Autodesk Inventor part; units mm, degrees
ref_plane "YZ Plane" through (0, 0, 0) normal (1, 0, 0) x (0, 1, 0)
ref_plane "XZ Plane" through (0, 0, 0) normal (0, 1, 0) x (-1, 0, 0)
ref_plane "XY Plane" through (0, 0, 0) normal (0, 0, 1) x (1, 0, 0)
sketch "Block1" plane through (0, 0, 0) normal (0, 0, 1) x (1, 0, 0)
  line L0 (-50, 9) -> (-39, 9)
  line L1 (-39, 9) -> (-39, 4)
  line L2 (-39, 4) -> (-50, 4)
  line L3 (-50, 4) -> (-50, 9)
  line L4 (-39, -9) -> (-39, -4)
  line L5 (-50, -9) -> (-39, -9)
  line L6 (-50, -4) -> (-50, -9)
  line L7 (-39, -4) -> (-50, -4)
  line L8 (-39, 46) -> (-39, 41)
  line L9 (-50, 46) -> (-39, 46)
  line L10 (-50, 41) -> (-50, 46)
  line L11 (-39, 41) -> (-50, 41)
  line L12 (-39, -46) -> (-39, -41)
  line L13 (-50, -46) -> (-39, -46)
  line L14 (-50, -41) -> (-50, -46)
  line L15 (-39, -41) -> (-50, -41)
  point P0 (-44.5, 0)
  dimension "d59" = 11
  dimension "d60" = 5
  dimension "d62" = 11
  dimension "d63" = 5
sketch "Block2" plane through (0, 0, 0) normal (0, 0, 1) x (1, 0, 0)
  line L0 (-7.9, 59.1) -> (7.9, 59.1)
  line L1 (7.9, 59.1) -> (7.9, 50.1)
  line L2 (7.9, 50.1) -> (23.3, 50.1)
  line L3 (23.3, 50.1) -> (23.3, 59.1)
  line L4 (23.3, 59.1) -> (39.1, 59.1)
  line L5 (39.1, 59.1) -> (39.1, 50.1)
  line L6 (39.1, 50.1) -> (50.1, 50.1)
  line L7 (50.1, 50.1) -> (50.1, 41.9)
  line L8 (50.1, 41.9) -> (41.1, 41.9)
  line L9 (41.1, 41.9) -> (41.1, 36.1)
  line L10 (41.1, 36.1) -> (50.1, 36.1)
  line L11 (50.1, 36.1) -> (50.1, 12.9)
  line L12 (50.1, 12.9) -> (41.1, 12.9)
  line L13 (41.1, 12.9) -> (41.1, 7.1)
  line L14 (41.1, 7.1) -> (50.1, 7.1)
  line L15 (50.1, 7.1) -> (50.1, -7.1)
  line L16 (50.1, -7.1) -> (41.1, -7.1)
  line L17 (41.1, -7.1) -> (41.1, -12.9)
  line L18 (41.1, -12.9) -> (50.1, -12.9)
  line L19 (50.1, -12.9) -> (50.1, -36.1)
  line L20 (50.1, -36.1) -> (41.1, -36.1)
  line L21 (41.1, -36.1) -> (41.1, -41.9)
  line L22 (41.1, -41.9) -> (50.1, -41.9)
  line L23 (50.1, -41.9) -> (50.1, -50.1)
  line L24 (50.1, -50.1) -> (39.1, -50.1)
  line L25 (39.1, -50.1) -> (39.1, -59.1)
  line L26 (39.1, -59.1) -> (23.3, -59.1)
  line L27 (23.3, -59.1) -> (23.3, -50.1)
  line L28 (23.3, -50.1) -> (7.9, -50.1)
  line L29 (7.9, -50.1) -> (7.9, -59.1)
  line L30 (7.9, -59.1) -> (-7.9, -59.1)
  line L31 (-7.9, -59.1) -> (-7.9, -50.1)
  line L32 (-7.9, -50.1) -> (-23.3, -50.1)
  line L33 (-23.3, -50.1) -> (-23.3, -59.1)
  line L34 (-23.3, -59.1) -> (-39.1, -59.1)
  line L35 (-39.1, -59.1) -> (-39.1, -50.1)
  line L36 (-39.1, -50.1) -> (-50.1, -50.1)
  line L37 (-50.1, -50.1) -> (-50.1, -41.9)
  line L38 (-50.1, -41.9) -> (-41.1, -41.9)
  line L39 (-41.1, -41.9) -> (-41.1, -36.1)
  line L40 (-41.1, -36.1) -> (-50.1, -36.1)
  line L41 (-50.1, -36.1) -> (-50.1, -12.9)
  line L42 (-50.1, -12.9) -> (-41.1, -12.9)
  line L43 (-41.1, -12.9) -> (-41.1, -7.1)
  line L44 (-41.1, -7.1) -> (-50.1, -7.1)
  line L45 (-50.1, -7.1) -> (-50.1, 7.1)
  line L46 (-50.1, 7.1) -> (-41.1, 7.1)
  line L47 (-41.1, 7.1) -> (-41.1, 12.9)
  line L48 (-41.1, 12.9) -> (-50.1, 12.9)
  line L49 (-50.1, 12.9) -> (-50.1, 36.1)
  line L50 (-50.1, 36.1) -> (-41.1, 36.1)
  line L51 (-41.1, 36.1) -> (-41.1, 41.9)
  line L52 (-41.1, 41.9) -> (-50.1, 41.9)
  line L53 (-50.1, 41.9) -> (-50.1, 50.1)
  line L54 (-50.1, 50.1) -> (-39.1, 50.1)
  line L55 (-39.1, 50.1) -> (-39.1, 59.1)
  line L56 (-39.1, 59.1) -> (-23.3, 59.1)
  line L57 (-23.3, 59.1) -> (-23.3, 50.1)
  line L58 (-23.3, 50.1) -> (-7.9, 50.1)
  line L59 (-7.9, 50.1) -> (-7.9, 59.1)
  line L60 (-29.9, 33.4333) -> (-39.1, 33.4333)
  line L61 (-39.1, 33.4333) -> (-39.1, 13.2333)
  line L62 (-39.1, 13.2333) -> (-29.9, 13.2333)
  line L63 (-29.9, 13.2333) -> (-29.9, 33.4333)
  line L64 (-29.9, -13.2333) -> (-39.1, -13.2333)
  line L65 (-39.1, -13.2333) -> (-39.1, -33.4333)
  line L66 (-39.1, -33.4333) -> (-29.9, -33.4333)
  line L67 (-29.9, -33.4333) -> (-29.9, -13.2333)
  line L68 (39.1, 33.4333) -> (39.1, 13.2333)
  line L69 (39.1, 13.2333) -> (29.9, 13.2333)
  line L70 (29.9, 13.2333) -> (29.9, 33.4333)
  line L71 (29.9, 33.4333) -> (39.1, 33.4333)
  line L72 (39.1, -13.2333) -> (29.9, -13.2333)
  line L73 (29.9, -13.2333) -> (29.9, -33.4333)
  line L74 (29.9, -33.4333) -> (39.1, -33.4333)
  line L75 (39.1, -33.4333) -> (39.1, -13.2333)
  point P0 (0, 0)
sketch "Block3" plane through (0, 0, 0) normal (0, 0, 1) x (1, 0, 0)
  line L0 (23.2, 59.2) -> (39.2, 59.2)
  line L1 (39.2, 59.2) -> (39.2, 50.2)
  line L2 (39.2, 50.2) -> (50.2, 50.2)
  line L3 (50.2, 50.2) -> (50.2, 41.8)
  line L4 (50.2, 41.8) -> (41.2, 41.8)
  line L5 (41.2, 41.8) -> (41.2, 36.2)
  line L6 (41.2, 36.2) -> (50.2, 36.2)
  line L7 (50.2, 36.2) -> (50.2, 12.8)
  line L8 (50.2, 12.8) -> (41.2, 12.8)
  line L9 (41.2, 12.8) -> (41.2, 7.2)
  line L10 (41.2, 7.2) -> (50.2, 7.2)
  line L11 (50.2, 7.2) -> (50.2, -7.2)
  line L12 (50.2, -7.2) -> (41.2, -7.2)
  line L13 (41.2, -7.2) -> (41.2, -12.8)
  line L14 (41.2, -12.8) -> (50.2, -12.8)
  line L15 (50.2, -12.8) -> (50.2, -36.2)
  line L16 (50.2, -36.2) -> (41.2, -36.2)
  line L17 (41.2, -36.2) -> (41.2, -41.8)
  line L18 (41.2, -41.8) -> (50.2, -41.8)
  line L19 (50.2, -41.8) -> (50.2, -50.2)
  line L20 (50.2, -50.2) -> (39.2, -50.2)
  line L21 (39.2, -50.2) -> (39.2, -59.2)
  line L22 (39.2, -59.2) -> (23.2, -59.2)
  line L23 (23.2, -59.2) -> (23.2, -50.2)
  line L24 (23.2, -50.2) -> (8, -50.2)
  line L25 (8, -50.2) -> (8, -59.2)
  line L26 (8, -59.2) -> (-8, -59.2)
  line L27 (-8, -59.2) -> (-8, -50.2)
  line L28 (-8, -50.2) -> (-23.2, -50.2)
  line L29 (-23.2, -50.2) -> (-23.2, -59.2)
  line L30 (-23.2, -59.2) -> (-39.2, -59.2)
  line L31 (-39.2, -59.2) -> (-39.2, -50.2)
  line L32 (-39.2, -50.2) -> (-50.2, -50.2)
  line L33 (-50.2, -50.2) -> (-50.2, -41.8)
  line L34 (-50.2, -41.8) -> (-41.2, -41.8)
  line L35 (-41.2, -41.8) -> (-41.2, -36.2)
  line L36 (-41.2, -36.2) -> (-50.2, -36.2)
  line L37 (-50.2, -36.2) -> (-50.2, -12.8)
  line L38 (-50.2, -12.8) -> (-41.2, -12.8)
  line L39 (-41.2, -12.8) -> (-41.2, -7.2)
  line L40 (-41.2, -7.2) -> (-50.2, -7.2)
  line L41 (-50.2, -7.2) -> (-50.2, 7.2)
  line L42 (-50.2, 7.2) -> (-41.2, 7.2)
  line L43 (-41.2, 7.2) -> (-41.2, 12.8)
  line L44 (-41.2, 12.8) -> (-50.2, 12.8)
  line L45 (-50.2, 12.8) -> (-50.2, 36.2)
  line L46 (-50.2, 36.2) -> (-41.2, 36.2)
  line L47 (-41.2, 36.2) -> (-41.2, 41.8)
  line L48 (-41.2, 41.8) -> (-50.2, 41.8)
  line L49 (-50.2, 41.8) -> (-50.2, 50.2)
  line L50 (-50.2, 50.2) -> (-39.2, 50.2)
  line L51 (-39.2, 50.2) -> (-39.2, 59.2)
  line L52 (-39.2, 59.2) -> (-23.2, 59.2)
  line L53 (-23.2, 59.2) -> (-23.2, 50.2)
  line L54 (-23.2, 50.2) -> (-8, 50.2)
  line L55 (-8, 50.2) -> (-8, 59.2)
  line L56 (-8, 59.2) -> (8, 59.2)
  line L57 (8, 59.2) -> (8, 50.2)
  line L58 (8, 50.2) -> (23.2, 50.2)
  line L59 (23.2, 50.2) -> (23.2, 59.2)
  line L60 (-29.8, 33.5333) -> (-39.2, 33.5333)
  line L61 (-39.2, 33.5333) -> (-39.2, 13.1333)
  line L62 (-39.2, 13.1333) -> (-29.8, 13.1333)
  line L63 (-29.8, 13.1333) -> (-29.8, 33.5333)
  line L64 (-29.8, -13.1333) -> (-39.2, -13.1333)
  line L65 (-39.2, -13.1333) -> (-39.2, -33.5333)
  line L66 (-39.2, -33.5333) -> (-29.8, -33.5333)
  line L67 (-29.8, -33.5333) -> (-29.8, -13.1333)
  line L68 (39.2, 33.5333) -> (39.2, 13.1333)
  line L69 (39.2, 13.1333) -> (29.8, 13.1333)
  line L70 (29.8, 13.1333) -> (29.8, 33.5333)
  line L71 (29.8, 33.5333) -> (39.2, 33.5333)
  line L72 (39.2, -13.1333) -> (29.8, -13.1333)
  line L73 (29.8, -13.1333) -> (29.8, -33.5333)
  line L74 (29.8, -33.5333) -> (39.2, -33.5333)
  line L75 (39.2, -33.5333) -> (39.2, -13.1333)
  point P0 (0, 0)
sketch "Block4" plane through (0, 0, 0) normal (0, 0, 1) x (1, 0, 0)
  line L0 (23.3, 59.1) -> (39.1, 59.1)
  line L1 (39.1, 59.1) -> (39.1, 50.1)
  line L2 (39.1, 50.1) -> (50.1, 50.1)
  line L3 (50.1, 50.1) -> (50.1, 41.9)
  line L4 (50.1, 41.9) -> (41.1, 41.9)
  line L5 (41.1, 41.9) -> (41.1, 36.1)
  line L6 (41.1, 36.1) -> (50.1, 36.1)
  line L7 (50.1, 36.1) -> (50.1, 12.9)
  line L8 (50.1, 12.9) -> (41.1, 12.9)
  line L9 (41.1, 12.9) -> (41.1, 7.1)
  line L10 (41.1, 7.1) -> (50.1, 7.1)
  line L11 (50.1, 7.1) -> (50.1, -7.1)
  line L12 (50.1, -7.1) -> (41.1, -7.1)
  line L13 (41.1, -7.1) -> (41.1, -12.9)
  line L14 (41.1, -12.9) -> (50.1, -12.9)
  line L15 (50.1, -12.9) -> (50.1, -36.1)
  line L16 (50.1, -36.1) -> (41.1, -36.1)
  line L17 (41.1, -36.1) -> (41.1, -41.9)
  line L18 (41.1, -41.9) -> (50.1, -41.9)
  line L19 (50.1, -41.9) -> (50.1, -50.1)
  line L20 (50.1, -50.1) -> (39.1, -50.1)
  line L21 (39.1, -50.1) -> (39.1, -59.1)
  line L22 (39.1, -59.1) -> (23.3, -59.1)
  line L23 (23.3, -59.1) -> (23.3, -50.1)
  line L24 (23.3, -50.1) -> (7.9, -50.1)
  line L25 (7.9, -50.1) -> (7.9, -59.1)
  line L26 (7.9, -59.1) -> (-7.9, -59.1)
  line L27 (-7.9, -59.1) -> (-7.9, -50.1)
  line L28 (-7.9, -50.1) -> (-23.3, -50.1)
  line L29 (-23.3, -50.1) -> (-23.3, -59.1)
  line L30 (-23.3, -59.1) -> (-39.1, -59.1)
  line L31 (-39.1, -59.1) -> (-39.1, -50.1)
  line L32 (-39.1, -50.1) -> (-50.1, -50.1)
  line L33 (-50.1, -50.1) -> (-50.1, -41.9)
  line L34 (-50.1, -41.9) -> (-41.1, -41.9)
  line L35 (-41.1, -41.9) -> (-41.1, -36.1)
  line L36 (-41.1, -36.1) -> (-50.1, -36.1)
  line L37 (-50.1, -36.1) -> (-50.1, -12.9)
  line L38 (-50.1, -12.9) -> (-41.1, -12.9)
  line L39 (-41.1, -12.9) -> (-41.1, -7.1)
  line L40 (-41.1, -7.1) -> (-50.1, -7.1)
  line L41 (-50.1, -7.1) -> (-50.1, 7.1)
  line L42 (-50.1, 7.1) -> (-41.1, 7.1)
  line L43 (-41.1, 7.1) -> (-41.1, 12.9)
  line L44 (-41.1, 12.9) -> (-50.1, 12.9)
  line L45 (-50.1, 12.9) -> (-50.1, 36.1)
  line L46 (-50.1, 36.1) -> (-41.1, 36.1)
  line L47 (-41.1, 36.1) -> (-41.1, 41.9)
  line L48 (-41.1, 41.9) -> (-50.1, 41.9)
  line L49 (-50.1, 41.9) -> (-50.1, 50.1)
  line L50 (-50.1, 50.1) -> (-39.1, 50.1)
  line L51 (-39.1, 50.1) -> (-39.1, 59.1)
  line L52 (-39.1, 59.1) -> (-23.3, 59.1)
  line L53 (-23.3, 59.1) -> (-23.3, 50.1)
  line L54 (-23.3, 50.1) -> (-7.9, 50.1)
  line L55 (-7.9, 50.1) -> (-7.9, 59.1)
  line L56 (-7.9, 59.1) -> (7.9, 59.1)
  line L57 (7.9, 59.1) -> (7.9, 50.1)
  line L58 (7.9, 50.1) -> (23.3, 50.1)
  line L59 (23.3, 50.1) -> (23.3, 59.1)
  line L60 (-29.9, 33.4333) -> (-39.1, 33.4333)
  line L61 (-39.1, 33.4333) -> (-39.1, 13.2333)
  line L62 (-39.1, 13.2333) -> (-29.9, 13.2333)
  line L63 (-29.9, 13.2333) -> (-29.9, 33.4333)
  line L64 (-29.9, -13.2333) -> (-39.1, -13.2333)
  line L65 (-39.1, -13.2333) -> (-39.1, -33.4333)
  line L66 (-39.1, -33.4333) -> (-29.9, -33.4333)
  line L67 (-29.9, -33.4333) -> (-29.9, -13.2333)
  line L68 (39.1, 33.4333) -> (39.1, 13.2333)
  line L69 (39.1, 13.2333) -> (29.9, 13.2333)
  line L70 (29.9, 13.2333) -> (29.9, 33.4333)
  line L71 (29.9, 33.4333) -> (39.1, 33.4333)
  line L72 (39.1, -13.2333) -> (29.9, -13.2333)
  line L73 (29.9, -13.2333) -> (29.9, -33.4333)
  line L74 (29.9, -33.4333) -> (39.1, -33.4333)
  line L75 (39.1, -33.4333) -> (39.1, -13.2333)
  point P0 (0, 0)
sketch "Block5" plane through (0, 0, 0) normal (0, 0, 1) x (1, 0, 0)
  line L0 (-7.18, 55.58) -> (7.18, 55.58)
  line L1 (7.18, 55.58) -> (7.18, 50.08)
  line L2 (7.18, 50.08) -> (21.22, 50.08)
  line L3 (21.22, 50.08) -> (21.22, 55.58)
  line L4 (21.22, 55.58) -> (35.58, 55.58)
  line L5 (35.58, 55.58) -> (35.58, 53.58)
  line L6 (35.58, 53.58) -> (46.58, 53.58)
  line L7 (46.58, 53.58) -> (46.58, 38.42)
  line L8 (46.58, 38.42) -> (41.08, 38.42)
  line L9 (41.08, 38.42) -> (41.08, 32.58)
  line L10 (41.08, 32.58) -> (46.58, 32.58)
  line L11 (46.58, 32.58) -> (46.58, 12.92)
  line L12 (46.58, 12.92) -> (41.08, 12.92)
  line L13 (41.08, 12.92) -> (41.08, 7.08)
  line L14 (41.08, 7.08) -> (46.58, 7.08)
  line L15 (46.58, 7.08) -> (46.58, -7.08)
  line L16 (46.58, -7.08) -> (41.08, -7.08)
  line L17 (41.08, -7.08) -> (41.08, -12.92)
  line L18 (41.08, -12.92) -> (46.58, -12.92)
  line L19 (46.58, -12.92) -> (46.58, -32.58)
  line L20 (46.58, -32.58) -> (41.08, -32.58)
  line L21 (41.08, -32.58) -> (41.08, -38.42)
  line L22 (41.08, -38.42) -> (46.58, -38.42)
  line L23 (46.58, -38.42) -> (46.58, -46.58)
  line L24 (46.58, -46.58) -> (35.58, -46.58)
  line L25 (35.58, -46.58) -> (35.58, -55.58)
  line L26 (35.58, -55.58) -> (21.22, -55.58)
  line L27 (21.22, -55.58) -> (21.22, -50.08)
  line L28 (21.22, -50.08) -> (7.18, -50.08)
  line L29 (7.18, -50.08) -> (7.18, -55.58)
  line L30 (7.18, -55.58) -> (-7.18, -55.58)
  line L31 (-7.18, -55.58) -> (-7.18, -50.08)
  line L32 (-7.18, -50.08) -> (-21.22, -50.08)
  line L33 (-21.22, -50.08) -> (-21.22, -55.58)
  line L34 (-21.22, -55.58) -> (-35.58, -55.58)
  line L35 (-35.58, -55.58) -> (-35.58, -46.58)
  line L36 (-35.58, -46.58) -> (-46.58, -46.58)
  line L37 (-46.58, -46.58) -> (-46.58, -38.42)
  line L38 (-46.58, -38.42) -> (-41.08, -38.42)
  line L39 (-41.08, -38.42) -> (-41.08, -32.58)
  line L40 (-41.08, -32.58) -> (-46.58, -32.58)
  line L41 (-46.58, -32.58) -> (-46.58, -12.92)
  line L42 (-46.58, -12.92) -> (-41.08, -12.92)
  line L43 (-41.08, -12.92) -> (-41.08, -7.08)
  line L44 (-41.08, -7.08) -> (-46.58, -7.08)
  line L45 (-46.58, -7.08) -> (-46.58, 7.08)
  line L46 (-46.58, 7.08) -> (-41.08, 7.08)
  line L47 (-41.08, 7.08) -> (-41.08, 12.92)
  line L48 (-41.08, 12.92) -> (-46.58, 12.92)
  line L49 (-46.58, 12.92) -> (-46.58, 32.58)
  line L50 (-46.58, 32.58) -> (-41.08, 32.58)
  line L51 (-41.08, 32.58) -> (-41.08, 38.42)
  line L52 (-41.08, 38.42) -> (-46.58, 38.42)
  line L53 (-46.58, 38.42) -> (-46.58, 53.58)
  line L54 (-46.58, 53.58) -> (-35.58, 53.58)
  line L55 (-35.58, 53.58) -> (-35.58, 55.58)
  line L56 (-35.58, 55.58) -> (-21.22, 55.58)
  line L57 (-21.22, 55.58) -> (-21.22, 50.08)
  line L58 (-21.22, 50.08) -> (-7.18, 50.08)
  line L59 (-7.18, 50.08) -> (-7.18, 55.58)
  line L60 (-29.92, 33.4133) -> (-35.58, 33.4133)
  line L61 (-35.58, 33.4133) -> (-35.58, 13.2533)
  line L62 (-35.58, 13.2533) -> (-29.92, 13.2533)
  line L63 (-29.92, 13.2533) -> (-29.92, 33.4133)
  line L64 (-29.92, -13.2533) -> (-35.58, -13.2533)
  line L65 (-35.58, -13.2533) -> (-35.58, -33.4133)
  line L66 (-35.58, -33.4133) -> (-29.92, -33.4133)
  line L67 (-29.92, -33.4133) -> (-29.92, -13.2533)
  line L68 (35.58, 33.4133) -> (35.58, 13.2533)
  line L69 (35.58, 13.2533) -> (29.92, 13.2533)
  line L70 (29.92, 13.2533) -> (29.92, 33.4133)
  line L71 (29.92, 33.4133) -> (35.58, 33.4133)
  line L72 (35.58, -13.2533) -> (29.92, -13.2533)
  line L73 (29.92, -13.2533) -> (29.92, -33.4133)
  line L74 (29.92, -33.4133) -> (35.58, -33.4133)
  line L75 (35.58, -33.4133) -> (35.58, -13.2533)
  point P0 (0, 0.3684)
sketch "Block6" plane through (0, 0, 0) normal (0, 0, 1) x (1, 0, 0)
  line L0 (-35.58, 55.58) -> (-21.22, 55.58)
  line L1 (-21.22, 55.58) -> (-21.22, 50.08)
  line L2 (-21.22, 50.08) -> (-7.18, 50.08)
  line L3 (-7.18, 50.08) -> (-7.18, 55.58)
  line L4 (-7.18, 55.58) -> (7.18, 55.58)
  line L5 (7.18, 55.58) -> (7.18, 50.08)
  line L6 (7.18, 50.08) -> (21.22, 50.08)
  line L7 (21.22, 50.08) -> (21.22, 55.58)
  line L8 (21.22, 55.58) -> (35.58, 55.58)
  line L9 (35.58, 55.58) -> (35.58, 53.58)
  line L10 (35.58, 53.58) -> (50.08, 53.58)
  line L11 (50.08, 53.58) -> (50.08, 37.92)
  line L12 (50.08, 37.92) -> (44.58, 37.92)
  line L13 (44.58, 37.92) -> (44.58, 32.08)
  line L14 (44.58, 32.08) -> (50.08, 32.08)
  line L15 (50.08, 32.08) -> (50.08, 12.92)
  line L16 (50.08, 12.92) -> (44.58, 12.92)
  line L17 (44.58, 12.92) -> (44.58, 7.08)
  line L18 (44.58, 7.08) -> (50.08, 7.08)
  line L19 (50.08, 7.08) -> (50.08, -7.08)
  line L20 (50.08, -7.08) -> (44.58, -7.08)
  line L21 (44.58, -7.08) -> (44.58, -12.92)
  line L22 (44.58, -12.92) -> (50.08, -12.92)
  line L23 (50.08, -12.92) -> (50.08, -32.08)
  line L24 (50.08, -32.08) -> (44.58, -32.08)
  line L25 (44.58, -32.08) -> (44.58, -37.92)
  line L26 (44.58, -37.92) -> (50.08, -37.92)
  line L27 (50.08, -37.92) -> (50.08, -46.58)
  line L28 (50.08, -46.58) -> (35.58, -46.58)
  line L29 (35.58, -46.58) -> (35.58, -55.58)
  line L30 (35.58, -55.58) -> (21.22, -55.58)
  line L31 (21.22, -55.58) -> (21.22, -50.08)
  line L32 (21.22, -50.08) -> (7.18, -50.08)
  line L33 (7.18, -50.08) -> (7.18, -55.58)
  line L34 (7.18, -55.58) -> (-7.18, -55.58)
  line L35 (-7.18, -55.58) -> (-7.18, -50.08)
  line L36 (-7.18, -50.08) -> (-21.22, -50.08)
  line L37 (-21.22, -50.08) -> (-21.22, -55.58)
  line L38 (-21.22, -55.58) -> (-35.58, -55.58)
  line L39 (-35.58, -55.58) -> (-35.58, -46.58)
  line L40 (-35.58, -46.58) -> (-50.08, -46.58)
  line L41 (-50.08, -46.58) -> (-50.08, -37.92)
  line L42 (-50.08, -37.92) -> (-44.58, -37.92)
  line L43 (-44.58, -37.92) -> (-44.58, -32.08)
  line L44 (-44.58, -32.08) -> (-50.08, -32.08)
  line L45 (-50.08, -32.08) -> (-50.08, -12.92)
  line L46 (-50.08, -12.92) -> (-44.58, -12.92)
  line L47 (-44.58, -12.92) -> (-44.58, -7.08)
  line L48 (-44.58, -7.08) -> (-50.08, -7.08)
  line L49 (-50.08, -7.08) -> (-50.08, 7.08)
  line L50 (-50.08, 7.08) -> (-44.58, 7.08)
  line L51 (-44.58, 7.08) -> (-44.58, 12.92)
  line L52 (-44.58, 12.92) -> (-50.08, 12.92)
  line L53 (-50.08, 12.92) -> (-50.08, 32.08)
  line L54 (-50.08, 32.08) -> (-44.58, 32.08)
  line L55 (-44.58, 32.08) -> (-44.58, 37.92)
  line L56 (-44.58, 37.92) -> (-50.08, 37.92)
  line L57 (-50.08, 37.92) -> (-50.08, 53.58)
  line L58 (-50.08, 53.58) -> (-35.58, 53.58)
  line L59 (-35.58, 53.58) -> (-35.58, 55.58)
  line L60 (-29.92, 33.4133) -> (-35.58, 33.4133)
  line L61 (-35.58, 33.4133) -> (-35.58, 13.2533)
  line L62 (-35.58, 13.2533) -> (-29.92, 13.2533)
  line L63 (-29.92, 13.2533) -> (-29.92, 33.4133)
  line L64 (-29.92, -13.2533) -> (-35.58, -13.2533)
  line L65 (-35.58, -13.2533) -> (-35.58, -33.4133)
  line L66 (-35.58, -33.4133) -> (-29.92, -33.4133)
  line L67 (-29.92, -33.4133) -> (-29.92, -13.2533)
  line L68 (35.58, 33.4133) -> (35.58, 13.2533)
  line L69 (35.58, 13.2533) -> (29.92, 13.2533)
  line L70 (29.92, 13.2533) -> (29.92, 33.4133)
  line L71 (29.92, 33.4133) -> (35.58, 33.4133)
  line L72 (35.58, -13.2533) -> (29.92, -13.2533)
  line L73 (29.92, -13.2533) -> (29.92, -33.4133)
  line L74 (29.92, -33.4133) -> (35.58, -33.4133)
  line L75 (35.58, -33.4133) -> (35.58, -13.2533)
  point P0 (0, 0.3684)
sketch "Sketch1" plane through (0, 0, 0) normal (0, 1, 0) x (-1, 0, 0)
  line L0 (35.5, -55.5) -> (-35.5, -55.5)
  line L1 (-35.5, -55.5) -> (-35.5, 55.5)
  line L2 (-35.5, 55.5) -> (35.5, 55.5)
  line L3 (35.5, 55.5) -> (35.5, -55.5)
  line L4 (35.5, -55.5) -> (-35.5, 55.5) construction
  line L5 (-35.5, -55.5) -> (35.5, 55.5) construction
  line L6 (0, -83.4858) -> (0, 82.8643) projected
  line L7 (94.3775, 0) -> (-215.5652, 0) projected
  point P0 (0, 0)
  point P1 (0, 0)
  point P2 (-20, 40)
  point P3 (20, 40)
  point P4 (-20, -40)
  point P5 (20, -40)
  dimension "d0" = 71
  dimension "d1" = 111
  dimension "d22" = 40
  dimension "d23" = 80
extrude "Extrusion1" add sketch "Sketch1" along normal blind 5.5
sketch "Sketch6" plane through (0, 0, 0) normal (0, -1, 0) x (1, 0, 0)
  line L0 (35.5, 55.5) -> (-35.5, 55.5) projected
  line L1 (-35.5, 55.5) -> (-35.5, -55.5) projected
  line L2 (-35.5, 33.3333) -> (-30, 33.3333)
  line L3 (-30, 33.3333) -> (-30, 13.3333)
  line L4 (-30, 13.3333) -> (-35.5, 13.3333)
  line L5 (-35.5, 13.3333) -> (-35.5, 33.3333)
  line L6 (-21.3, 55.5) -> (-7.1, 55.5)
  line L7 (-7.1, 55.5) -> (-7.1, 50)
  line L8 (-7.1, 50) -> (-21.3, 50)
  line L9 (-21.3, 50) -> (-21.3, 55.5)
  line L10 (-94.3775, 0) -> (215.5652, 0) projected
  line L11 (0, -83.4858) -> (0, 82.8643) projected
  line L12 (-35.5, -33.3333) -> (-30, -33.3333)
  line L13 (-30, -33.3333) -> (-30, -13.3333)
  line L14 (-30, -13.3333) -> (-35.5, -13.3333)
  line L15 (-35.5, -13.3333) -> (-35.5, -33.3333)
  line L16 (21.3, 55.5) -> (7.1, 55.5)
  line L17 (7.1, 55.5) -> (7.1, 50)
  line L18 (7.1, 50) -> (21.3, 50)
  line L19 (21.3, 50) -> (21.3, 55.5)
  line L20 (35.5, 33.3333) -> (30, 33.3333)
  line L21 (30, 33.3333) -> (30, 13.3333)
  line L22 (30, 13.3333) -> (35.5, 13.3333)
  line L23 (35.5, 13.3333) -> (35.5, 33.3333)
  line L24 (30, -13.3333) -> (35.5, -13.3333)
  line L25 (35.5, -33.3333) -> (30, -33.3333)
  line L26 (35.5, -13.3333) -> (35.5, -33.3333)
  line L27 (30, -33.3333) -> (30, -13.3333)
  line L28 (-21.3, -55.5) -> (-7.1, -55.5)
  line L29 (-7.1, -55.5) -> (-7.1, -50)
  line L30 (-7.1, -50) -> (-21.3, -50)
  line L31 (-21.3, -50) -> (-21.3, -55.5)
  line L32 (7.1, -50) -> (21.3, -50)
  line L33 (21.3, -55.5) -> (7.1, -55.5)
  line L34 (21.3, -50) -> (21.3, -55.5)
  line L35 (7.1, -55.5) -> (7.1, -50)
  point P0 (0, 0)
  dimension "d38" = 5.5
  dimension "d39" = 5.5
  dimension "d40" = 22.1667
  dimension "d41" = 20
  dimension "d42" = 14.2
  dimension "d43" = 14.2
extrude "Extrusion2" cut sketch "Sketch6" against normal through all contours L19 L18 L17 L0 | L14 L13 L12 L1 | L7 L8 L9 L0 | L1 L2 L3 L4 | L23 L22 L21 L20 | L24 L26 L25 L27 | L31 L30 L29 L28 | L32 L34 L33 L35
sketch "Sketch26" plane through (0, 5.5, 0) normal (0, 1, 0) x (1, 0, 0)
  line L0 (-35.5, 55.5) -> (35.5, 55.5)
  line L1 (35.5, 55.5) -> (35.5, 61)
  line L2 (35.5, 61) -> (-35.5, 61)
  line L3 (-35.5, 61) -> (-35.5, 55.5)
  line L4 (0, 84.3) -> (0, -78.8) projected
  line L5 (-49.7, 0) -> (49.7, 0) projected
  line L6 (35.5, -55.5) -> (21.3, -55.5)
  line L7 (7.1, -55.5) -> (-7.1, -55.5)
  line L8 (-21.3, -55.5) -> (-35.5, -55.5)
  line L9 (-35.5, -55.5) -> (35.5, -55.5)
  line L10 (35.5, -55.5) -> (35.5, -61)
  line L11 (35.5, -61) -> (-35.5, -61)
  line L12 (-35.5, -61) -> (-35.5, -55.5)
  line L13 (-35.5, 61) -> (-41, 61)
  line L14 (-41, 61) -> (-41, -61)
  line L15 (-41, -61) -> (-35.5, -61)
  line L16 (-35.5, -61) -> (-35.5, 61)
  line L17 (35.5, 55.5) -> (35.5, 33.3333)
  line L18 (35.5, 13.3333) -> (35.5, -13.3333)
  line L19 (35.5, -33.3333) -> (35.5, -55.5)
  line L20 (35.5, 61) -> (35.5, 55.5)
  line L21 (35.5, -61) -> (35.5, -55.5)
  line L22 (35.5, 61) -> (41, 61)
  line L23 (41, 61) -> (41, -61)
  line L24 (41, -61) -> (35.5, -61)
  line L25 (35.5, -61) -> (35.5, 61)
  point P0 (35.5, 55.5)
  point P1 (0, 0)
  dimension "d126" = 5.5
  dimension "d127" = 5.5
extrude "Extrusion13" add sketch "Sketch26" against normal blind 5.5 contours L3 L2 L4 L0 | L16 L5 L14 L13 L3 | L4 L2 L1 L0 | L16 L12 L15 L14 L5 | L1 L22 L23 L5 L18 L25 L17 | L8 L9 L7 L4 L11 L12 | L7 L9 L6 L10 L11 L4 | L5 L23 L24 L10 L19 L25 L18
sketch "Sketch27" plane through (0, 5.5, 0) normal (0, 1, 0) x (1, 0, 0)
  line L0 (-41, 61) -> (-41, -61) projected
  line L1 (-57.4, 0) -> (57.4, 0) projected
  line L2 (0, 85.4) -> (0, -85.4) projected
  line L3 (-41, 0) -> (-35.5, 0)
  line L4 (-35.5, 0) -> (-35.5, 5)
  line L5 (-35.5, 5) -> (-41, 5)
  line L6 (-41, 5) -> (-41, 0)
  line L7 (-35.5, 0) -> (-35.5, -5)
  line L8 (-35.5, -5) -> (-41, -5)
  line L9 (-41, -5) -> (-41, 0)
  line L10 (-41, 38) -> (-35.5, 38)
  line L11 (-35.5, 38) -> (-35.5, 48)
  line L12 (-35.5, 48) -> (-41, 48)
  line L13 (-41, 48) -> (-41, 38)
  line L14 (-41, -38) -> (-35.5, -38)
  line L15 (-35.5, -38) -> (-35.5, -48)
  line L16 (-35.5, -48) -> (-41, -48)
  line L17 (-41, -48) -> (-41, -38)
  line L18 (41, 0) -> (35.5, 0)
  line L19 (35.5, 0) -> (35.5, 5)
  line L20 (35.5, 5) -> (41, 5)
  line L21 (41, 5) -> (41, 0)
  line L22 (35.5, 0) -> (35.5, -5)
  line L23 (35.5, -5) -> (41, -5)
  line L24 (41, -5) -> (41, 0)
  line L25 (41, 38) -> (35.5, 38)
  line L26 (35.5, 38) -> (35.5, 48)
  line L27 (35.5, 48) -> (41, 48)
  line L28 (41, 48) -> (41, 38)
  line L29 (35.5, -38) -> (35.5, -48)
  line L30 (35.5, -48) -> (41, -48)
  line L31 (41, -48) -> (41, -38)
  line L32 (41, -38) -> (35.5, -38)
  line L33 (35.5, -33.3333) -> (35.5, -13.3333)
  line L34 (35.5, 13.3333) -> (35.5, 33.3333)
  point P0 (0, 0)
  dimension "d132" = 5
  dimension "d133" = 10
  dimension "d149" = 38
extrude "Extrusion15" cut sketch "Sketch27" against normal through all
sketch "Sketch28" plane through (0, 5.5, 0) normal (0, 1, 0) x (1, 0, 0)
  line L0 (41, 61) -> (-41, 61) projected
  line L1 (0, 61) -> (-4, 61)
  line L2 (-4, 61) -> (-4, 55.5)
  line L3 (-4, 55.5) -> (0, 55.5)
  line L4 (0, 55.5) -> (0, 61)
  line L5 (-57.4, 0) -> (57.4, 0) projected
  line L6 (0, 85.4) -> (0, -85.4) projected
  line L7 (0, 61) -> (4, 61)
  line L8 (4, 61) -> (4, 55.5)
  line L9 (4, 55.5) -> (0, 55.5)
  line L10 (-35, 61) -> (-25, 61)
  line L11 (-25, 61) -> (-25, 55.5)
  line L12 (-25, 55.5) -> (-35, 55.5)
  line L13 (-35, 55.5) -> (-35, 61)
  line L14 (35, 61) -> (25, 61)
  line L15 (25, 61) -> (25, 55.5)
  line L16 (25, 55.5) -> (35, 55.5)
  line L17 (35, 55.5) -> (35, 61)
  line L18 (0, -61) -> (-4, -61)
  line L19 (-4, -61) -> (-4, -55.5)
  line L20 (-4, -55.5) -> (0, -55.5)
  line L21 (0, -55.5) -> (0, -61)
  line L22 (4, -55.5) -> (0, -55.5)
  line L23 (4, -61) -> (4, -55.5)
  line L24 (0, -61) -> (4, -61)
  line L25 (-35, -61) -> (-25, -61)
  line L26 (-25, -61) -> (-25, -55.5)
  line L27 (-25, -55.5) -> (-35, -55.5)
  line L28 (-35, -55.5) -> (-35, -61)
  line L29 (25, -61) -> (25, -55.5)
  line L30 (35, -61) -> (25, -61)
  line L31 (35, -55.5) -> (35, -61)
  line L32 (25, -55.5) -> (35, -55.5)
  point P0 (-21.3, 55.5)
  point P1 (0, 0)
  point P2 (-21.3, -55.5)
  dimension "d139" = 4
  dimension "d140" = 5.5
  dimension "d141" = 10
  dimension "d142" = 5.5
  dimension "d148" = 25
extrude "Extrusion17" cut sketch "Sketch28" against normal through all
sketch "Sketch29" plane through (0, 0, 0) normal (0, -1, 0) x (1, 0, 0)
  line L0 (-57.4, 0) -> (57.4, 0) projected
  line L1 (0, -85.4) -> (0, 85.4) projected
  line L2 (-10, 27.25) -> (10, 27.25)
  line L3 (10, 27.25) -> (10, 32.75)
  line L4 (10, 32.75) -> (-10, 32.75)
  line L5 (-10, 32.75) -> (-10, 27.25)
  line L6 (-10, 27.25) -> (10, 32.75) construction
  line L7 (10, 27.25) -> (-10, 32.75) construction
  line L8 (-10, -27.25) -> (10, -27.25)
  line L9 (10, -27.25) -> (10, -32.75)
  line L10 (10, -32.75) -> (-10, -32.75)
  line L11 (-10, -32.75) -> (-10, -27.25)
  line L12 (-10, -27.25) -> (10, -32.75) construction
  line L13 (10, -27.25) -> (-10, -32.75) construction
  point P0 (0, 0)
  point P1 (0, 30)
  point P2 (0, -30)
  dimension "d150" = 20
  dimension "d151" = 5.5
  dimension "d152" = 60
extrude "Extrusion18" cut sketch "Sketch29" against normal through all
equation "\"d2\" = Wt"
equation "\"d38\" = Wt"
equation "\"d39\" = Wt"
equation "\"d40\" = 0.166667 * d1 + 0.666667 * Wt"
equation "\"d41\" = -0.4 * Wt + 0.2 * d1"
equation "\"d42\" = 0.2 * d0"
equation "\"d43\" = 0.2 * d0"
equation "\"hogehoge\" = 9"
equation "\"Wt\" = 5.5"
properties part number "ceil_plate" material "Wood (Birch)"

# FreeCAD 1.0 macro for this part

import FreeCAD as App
import Part
import Sketcher
Q = App.Units.Quantity


def add_polygon(sketch, points):
    """Adds a closed chain of lines whose ends are joined by coincident constraints."""
    first, n = sketch.GeometryCount, len(points)
    for a, b in zip(points, points[1:] + points[:1]):
        sketch.addGeometry(Part.LineSegment(App.Vector(*a, 0), App.Vector(*b, 0)), False)
    for i in range(n):
        sketch.addConstraint(Sketcher.Constraint("Coincident", first + i, 2, first + (i + 1) % n, 1))

doc = App.newDocument("Part")
params = doc.addObject("Spreadsheet::Sheet", "Params")
for row, (alias, value) in enumerate([
    ("sketch1_width", "71 mm"),
    ("sketch1_height", "111 mm"),
    ("pad1_length", "5.5 mm"),
    ("sketch2_height", "20 mm"),
    ("sketch2_width", "14.2 mm"),
    ("sketch2_width2", "5.5 mm"),
    ("sketch3_width", "82 mm"),
    ("sketch3_height", "122 mm"),
    ("pad2_length", "5.5 mm"),
    ("sketch4_height", "10 mm"),
    ("sketch4_width", "5.5 mm"),
    ("sketch5_width", "10 mm"),
    ("sketch5_height", "5.5 mm"),
    ("sketch6_width", "20 mm"),
    ("sketch6_height", "5.5 mm"),
], start=1):
    params.set(f"A{row}", alias)
    params.set(f"B{row}", "=" + value)
    params.setAlias(f"B{row}", alias)

body = doc.addObject("PartDesign::Body", "Body")

sketch1 = body.newObject("Sketcher::SketchObject", "Sketch")
sketch1.AttachmentSupport = (doc.getObject("XZ_Plane"), [""])
sketch1.MapMode = "FlatFace"
add_polygon(sketch1, [(-36, -56), (-36, 56), (36, 56), (36, -56)])
sketch1.addConstraint([
    Sketcher.Constraint("Vertical", 0),
    Sketcher.Constraint("Horizontal", 1),
    Sketcher.Constraint("Vertical", 2),
    Sketcher.Constraint("Horizontal", 3),
    Sketcher.Constraint("Symmetric", 0, 2, 2, 2, -1, 1),
    Sketcher.Constraint("DistanceX", 1, 1, 1, 2, Q("71 mm")),
    Sketcher.Constraint("DistanceY", 0, 1, 0, 2, Q("111 mm")),
])
sketch1.setExpression("Constraints[9]", "Params.sketch1_width")
sketch1.setExpression("Constraints[10]", "Params.sketch1_height")
pad1 = body.newObject("PartDesign::Pad", "Pad")
pad1.Profile = sketch1
pad1.setExpression("Length", "Params.pad1_length")
pad1.Reversed = True

sketch2 = body.newObject("Sketcher::SketchObject", "Sketch001")
sketch2.AttachmentSupport = (doc.getObject("XZ_Plane"), [""])
sketch2.MapMode = "FlatFace"
add_polygon(sketch2, [(21, 50), (21, 56), (7, 56), (7, 50)])
add_polygon(sketch2, [(-30, -13), (-36, -13), (-36, -33), (-30, -33)])
add_polygon(sketch2, [(-7, 50), (-7, 56), (-21, 56), (-21, 50)])
add_polygon(sketch2, [(-36, 33), (-36, 13), (-30, 13), (-30, 33)])
add_polygon(sketch2, [(36, 13), (36, 33), (30, 33), (30, 13)])
add_polygon(sketch2, [(36, -13), (30, -13), (30, -33), (36, -33)])
add_polygon(sketch2, [(-21, -50), (-21, -56), (-7, -56), (-7, -50)])
add_polygon(sketch2, [(21, -50), (7, -50), (7, -56), (21, -56)])
sketch2.addConstraint([
    Sketcher.Constraint("Vertical", 0),
    Sketcher.Constraint("Horizontal", 1),
    Sketcher.Constraint("Vertical", 2),
    Sketcher.Constraint("Horizontal", 3),
    Sketcher.Constraint("Horizontal", 4),
    Sketcher.Constraint("Vertical", 5),
    Sketcher.Constraint("Horizontal", 6),
    Sketcher.Constraint("Vertical", 7),
    Sketcher.Constraint("Vertical", 8),
    Sketcher.Constraint("Horizontal", 9),
    Sketcher.Constraint("Vertical", 10),
    Sketcher.Constraint("Horizontal", 11),
    Sketcher.Constraint("Vertical", 12),
    Sketcher.Constraint("Horizontal", 13),
    Sketcher.Constraint("Vertical", 14),
    Sketcher.Constraint("Horizontal", 15),
    Sketcher.Constraint("Vertical", 16),
    Sketcher.Constraint("Horizontal", 17),
    Sketcher.Constraint("Vertical", 18),
    Sketcher.Constraint("Horizontal", 19),
    Sketcher.Constraint("Horizontal", 20),
    Sketcher.Constraint("Vertical", 21),
    Sketcher.Constraint("Horizontal", 22),
    Sketcher.Constraint("Vertical", 23),
    Sketcher.Constraint("Vertical", 24),
    Sketcher.Constraint("Horizontal", 25),
    Sketcher.Constraint("Vertical", 26),
    Sketcher.Constraint("Horizontal", 27),
    Sketcher.Constraint("Horizontal", 28),
    Sketcher.Constraint("Vertical", 29),
    Sketcher.Constraint("Horizontal", 30),
    Sketcher.Constraint("Vertical", 31),
    Sketcher.Constraint("Symmetric", 5, 2, 16, 2, -1, 1),
    Sketcher.Constraint("Symmetric", 7, 2, 18, 2, -1, 1),
    Sketcher.Constraint("Symmetric", 13, 2, 20, 2, -1, 1),
    Sketcher.Constraint("Symmetric", 15, 2, 22, 2, -1, 1),
    Sketcher.Constraint("Symmetric", 0, 2, 24, 2, -1, 1),
    Sketcher.Constraint("Symmetric", 2, 2, 26, 2, -1, 1),
    Sketcher.Constraint("Symmetric", 11, 2, 28, 2, -1, 1),
    Sketcher.Constraint("Symmetric", 9, 2, 30, 2, -1, 1),
    Sketcher.Constraint("Symmetric", 1, 2, 8, 2, -2),
    Sketcher.Constraint("Symmetric", 3, 2, 10, 2, -2),
    Sketcher.Constraint("Symmetric", 15, 2, 16, 2, -2),
    Sketcher.Constraint("Symmetric", 13, 2, 18, 2, -2),
    Sketcher.Constraint("Equal", 22, 0),
    Sketcher.Constraint("DistanceY", 5, 2, 5, 1, Q("20 mm")),
    Sketcher.Constraint("DistanceX", 1, 2, 1, 1, Q("14.2 mm")),
    Sketcher.Constraint("DistanceX", 4, 2, 4, 1, Q("5.5 mm")),
    Sketcher.Constraint("DistanceX", 8, 2, 1, 2, Q("14.2 mm")),
    Sketcher.Constraint("DistanceX", 12, 2, 10, 2, Q("14.2 mm")),
    Sketcher.Constraint("DistanceY", -1, 1, 2, 2, Q("50 mm")),
    Sketcher.Constraint("DistanceY", 14, 2, 9, 2, Q("22.1667 mm")),
])
sketch2.setExpression("Constraints[77]", "Params.sketch2_height")
sketch2.setExpression("Constraints[78]", "Params.sketch2_width")
sketch2.setExpression("Constraints[79]", "Params.sketch2_width2")
pocket1 = body.newObject("PartDesign::Pocket", "Pocket")
pocket1.Profile = sketch2
pocket1.Type = "ThroughAll"

sketch3 = body.newObject("Sketcher::SketchObject", "Sketch002")
sketch3.AttachmentSupport = (doc.getObject("XZ_Plane"), [""])
sketch3.MapMode = "FlatFace"
sketch3.AttachmentOffset = App.Placement(App.Vector(0, 0, -5.5), App.Rotation())
add_polygon(sketch3, [(-41, -61), (-41, 61), (41, 61), (41, -61)])
add_polygon(sketch3, [(-36, -56), (36, -56), (36, 56), (-36, 56)])
sketch3.addConstraint([
    Sketcher.Constraint("Vertical", 0),
    Sketcher.Constraint("Horizontal", 1),
    Sketcher.Constraint("Vertical", 2),
    Sketcher.Constraint("Horizontal", 3),
    Sketcher.Constraint("Horizontal", 4),
    Sketcher.Constraint("Vertical", 5),
    Sketcher.Constraint("Horizontal", 6),
    Sketcher.Constraint("Vertical", 7),
    Sketcher.Constraint("Symmetric", 0, 2, 2, 2, -1, 1),
    Sketcher.Constraint("Symmetric", 4, 2, 6, 2, -1, 1),
    Sketcher.Constraint("DistanceX", 4, 2, 2, 2, Q("5.5 mm")),
    Sketcher.Constraint("DistanceY", 2, 2, 4, 2, Q("5.5 mm")),
    Sketcher.Constraint("DistanceX", 1, 1, 1, 2, Q("82 mm")),
    Sketcher.Constraint("DistanceY", 0, 1, 0, 2, Q("122 mm")),
])
sketch3.setExpression("Constraints[20]", "Params.sketch3_width")
sketch3.setExpression("Constraints[21]", "Params.sketch3_height")
pad2 = body.newObject("PartDesign::Pad", "Pad001")
pad2.Profile = sketch3
pad2.setExpression("Length", "Params.pad2_length")

sketch4 = body.newObject("Sketcher::SketchObject", "Sketch003")
sketch4.AttachmentSupport = (doc.getObject("XZ_Plane"), [""])
sketch4.MapMode = "FlatFace"
sketch4.AttachmentOffset = App.Placement(App.Vector(0, 0, -5.5), App.Rotation())
add_polygon(sketch4, [(-36, -48), (-41, -48), (-41, -38), (-36, -38)])
add_polygon(sketch4, [(36, -5), (36, 5), (41, 5), (41, -5)])
add_polygon(sketch4, [(-36, 38), (-41, 38), (-41, 48), (-36, 48)])
add_polygon(sketch4, [(-36, -5), (-41, -5), (-41, 5), (-36, 5)])
add_polygon(sketch4, [(36, -38), (41, -38), (41, -48), (36, -48)])
add_polygon(sketch4, [(41, 38), (36, 38), (36, 48), (41, 48)])
sketch4.addConstraint([
    Sketcher.Constraint("Horizontal", 0),
    Sketcher.Constraint("Vertical", 1),
    Sketcher.Constraint("Horizontal", 2),
    Sketcher.Constraint("Vertical", 3),
    Sketcher.Constraint("Vertical", 4),
    Sketcher.Constraint("Horizontal", 5),
    Sketcher.Constraint("Vertical", 6),
    Sketcher.Constraint("Horizontal", 7),
    Sketcher.Constraint("Horizontal", 8),
    Sketcher.Constraint("Vertical", 9),
    Sketcher.Constraint("Horizontal", 10),
    Sketcher.Constraint("Vertical", 11),
    Sketcher.Constraint("Horizontal", 12),
    Sketcher.Constraint("Vertical", 13),
    Sketcher.Constraint("Horizontal", 14),
    Sketcher.Constraint("Vertical", 15),
    Sketcher.Constraint("Horizontal", 16),
    Sketcher.Constraint("Vertical", 17),
    Sketcher.Constraint("Horizontal", 18),
    Sketcher.Constraint("Vertical", 19),
    Sketcher.Constraint("Horizontal", 20),
    Sketcher.Constraint("Vertical", 21),
    Sketcher.Constraint("Horizontal", 22),
    Sketcher.Constraint("Vertical", 23),
    Sketcher.Constraint("Symmetric", 5, 2, 12, 2, -1, 1),
    Sketcher.Constraint("Symmetric", 7, 2, 14, 2, -1, 1),
    Sketcher.Constraint("Symmetric", 8, 2, 16, 2, -1, 1),
    Sketcher.Constraint("Symmetric", 10, 2, 18, 2, -1, 1),
    Sketcher.Constraint("Symmetric", 2, 2, 20, 2, -1, 1),
    Sketcher.Constraint("Symmetric", 0, 2, 22, 2, -1, 1),
    Sketcher.Constraint("Symmetric", 1, 2, 16, 2, -2),
    Sketcher.Constraint("Symmetric", 3, 2, 18, 2, -2),
    Sketcher.Constraint("Horizontal", 7, 2, 12, 2),
    Sketcher.Constraint("Vertical", 9, 2, 12, 2),
    Sketcher.Constraint("Vertical", 11, 2, 14, 2),
    Sketcher.Constraint("Equal", 3, 4),
    Sketcher.Constraint("DistanceY", 1, 1, 1, 2, Q("10 mm")),
    Sketcher.Constraint("DistanceY", 1, 2, -1, 1, Q("38 mm")),
    Sketcher.Constraint("DistanceX", 0, 2, 0, 1, Q("5.5 mm")),
    Sketcher.Constraint("DistanceX", 0, 2, -1, 1, Q("41 mm")),
])
sketch4.setExpression("Constraints[60]", "Params.sketch4_height")
sketch4.setExpression("Constraints[62]", "Params.sketch4_width")
pocket2 = body.newObject("PartDesign::Pocket", "Pocket001")
pocket2.Profile = sketch4
pocket2.Type = "ThroughAll"
pocket2.Reversed = True

sketch5 = body.newObject("Sketcher::SketchObject", "Sketch004")
sketch5.AttachmentSupport = (doc.getObject("XZ_Plane"), [""])
sketch5.MapMode = "FlatFace"
sketch5.AttachmentOffset = App.Placement(App.Vector(0, 0, -5.5), App.Rotation())
add_polygon(sketch5, [(35, -56), (35, -61), (25, -61), (25, -56)])
add_polygon(sketch5, [(4, 56), (-4, 56), (-4, 61), (4, 61)])
add_polygon(sketch5, [(-25, -56), (-25, -61), (-35, -61), (-35, -56)])
add_polygon(sketch5, [(4, -56), (4, -61), (-4, -61), (-4, -56)])
add_polygon(sketch5, [(-35, 56), (-35, 61), (-25, 61), (-25, 56)])
add_polygon(sketch5, [(25, 56), (25, 61), (35, 61), (35, 56)])
sketch5.addConstraint([
    Sketcher.Constraint("Vertical", 0),
    Sketcher.Constraint("Horizontal", 1),
    Sketcher.Constraint("Vertical", 2),
    Sketcher.Constraint("Horizontal", 3),
    Sketcher.Constraint("Horizontal", 4),
    Sketcher.Constraint("Vertical", 5),
    Sketcher.Constraint("Horizontal", 6),
    Sketcher.Constraint("Vertical", 7),
    Sketcher.Constraint("Vertical", 8),
    Sketcher.Constraint("Horizontal", 9),
    Sketcher.Constraint("Vertical", 10),
    Sketcher.Constraint("Horizontal", 11),
    Sketcher.Constraint("Vertical", 12),
    Sketcher.Constraint("Horizontal", 13),
    Sketcher.Constraint("Vertical", 14),
    Sketcher.Constraint("Horizontal", 15),
    Sketcher.Constraint("Vertical", 16),
    Sketcher.Constraint("Horizontal", 17),
    Sketcher.Constraint("Vertical", 18),
    Sketcher.Constraint("Horizontal", 19),
    Sketcher.Constraint("Vertical", 20),
    Sketcher.Constraint("Horizontal", 21),
    Sketcher.Constraint("Vertical", 22),
    Sketcher.Constraint("Horizontal", 23),
    Sketcher.Constraint("Symmetric", 5, 2, 12, 2, -1, 1),
    Sketcher.Constraint("Symmetric", 7, 2, 14, 2, -1, 1),
    Sketcher.Constraint("Symmetric", 0, 2, 16, 2, -1, 1),
    Sketcher.Constraint("Symmetric", 2, 2, 18, 2, -1, 1),
    Sketcher.Constraint("Symmetric", 8, 2, 20, 2, -1, 1),
    Sketcher.Constraint("Symmetric", 10, 2, 22, 2, -1, 1),
    Sketcher.Constraint("Symmetric", 1, 2, 8, 2, -2),
    Sketcher.Constraint("Symmetric", 3, 2, 10, 2, -2),
    Sketcher.Constraint("Horizontal", 9, 2, 12, 2),
    Sketcher.Constraint("Horizontal", 11, 2, 14, 2),
    Sketcher.Constraint("Vertical", 7, 2, 12, 2),
    Sketcher.Constraint("DistanceX", 1, 2, 1, 1, Q("10 mm")),
    Sketcher.Constraint("DistanceY", 0, 2, 0, 1, Q("5.5 mm")),
    Sketcher.Constraint("DistanceX", -1, 1, 1, 2, Q("25 mm")),
    Sketcher.Constraint("DistanceX", 4, 2, -1, 1, Q("4 mm")),
    Sketcher.Constraint("DistanceY", 0, 2, -1, 1, Q("61 mm")),
])
sketch5.setExpression("Constraints[59]", "Params.sketch5_width")
sketch5.setExpression("Constraints[60]", "Params.sketch5_height")
pocket3 = body.newObject("PartDesign::Pocket", "Pocket002")
pocket3.Profile = sketch5
pocket3.Type = "ThroughAll"
pocket3.Reversed = True

sketch6 = body.newObject("Sketcher::SketchObject", "Sketch005")
sketch6.AttachmentSupport = (doc.getObject("XZ_Plane"), [""])
sketch6.MapMode = "FlatFace"
add_polygon(sketch6, [(-10, -33), (10, -33), (10, -27), (-10, -27)])
add_polygon(sketch6, [(-10, 27), (10, 27), (10, 33), (-10, 33)])
sketch6.addConstraint([
    Sketcher.Constraint("Horizontal", 0),
    Sketcher.Constraint("Vertical", 1),
    Sketcher.Constraint("Horizontal", 2),
    Sketcher.Constraint("Vertical", 3),
    Sketcher.Constraint("Horizontal", 4),
    Sketcher.Constraint("Vertical", 5),
    Sketcher.Constraint("Horizontal", 6),
    Sketcher.Constraint("Vertical", 7),
    Sketcher.Constraint("Symmetric", 2, 2, 4, 2, -1, 1),
    Sketcher.Constraint("Symmetric", 0, 2, 6, 2, -1, 1),
    Sketcher.Constraint("Vertical", 1, 2, 4, 2),
    Sketcher.Constraint("DistanceX", 0, 1, 0, 2, Q("20 mm")),
    Sketcher.Constraint("DistanceY", 1, 1, 1, 2, Q("5.5 mm")),
    Sketcher.Constraint("DistanceY", 0, 2, 4, 2, Q("60 mm")),
])
sketch6.setExpression("Constraints[19]", "Params.sketch6_width")
sketch6.setExpression("Constraints[20]", "Params.sketch6_height")
pocket4 = body.newObject("PartDesign::Pocket", "Pocket003")
pocket4.Profile = sketch6
pocket4.Type = "ThroughAll"

doc.recompute()
